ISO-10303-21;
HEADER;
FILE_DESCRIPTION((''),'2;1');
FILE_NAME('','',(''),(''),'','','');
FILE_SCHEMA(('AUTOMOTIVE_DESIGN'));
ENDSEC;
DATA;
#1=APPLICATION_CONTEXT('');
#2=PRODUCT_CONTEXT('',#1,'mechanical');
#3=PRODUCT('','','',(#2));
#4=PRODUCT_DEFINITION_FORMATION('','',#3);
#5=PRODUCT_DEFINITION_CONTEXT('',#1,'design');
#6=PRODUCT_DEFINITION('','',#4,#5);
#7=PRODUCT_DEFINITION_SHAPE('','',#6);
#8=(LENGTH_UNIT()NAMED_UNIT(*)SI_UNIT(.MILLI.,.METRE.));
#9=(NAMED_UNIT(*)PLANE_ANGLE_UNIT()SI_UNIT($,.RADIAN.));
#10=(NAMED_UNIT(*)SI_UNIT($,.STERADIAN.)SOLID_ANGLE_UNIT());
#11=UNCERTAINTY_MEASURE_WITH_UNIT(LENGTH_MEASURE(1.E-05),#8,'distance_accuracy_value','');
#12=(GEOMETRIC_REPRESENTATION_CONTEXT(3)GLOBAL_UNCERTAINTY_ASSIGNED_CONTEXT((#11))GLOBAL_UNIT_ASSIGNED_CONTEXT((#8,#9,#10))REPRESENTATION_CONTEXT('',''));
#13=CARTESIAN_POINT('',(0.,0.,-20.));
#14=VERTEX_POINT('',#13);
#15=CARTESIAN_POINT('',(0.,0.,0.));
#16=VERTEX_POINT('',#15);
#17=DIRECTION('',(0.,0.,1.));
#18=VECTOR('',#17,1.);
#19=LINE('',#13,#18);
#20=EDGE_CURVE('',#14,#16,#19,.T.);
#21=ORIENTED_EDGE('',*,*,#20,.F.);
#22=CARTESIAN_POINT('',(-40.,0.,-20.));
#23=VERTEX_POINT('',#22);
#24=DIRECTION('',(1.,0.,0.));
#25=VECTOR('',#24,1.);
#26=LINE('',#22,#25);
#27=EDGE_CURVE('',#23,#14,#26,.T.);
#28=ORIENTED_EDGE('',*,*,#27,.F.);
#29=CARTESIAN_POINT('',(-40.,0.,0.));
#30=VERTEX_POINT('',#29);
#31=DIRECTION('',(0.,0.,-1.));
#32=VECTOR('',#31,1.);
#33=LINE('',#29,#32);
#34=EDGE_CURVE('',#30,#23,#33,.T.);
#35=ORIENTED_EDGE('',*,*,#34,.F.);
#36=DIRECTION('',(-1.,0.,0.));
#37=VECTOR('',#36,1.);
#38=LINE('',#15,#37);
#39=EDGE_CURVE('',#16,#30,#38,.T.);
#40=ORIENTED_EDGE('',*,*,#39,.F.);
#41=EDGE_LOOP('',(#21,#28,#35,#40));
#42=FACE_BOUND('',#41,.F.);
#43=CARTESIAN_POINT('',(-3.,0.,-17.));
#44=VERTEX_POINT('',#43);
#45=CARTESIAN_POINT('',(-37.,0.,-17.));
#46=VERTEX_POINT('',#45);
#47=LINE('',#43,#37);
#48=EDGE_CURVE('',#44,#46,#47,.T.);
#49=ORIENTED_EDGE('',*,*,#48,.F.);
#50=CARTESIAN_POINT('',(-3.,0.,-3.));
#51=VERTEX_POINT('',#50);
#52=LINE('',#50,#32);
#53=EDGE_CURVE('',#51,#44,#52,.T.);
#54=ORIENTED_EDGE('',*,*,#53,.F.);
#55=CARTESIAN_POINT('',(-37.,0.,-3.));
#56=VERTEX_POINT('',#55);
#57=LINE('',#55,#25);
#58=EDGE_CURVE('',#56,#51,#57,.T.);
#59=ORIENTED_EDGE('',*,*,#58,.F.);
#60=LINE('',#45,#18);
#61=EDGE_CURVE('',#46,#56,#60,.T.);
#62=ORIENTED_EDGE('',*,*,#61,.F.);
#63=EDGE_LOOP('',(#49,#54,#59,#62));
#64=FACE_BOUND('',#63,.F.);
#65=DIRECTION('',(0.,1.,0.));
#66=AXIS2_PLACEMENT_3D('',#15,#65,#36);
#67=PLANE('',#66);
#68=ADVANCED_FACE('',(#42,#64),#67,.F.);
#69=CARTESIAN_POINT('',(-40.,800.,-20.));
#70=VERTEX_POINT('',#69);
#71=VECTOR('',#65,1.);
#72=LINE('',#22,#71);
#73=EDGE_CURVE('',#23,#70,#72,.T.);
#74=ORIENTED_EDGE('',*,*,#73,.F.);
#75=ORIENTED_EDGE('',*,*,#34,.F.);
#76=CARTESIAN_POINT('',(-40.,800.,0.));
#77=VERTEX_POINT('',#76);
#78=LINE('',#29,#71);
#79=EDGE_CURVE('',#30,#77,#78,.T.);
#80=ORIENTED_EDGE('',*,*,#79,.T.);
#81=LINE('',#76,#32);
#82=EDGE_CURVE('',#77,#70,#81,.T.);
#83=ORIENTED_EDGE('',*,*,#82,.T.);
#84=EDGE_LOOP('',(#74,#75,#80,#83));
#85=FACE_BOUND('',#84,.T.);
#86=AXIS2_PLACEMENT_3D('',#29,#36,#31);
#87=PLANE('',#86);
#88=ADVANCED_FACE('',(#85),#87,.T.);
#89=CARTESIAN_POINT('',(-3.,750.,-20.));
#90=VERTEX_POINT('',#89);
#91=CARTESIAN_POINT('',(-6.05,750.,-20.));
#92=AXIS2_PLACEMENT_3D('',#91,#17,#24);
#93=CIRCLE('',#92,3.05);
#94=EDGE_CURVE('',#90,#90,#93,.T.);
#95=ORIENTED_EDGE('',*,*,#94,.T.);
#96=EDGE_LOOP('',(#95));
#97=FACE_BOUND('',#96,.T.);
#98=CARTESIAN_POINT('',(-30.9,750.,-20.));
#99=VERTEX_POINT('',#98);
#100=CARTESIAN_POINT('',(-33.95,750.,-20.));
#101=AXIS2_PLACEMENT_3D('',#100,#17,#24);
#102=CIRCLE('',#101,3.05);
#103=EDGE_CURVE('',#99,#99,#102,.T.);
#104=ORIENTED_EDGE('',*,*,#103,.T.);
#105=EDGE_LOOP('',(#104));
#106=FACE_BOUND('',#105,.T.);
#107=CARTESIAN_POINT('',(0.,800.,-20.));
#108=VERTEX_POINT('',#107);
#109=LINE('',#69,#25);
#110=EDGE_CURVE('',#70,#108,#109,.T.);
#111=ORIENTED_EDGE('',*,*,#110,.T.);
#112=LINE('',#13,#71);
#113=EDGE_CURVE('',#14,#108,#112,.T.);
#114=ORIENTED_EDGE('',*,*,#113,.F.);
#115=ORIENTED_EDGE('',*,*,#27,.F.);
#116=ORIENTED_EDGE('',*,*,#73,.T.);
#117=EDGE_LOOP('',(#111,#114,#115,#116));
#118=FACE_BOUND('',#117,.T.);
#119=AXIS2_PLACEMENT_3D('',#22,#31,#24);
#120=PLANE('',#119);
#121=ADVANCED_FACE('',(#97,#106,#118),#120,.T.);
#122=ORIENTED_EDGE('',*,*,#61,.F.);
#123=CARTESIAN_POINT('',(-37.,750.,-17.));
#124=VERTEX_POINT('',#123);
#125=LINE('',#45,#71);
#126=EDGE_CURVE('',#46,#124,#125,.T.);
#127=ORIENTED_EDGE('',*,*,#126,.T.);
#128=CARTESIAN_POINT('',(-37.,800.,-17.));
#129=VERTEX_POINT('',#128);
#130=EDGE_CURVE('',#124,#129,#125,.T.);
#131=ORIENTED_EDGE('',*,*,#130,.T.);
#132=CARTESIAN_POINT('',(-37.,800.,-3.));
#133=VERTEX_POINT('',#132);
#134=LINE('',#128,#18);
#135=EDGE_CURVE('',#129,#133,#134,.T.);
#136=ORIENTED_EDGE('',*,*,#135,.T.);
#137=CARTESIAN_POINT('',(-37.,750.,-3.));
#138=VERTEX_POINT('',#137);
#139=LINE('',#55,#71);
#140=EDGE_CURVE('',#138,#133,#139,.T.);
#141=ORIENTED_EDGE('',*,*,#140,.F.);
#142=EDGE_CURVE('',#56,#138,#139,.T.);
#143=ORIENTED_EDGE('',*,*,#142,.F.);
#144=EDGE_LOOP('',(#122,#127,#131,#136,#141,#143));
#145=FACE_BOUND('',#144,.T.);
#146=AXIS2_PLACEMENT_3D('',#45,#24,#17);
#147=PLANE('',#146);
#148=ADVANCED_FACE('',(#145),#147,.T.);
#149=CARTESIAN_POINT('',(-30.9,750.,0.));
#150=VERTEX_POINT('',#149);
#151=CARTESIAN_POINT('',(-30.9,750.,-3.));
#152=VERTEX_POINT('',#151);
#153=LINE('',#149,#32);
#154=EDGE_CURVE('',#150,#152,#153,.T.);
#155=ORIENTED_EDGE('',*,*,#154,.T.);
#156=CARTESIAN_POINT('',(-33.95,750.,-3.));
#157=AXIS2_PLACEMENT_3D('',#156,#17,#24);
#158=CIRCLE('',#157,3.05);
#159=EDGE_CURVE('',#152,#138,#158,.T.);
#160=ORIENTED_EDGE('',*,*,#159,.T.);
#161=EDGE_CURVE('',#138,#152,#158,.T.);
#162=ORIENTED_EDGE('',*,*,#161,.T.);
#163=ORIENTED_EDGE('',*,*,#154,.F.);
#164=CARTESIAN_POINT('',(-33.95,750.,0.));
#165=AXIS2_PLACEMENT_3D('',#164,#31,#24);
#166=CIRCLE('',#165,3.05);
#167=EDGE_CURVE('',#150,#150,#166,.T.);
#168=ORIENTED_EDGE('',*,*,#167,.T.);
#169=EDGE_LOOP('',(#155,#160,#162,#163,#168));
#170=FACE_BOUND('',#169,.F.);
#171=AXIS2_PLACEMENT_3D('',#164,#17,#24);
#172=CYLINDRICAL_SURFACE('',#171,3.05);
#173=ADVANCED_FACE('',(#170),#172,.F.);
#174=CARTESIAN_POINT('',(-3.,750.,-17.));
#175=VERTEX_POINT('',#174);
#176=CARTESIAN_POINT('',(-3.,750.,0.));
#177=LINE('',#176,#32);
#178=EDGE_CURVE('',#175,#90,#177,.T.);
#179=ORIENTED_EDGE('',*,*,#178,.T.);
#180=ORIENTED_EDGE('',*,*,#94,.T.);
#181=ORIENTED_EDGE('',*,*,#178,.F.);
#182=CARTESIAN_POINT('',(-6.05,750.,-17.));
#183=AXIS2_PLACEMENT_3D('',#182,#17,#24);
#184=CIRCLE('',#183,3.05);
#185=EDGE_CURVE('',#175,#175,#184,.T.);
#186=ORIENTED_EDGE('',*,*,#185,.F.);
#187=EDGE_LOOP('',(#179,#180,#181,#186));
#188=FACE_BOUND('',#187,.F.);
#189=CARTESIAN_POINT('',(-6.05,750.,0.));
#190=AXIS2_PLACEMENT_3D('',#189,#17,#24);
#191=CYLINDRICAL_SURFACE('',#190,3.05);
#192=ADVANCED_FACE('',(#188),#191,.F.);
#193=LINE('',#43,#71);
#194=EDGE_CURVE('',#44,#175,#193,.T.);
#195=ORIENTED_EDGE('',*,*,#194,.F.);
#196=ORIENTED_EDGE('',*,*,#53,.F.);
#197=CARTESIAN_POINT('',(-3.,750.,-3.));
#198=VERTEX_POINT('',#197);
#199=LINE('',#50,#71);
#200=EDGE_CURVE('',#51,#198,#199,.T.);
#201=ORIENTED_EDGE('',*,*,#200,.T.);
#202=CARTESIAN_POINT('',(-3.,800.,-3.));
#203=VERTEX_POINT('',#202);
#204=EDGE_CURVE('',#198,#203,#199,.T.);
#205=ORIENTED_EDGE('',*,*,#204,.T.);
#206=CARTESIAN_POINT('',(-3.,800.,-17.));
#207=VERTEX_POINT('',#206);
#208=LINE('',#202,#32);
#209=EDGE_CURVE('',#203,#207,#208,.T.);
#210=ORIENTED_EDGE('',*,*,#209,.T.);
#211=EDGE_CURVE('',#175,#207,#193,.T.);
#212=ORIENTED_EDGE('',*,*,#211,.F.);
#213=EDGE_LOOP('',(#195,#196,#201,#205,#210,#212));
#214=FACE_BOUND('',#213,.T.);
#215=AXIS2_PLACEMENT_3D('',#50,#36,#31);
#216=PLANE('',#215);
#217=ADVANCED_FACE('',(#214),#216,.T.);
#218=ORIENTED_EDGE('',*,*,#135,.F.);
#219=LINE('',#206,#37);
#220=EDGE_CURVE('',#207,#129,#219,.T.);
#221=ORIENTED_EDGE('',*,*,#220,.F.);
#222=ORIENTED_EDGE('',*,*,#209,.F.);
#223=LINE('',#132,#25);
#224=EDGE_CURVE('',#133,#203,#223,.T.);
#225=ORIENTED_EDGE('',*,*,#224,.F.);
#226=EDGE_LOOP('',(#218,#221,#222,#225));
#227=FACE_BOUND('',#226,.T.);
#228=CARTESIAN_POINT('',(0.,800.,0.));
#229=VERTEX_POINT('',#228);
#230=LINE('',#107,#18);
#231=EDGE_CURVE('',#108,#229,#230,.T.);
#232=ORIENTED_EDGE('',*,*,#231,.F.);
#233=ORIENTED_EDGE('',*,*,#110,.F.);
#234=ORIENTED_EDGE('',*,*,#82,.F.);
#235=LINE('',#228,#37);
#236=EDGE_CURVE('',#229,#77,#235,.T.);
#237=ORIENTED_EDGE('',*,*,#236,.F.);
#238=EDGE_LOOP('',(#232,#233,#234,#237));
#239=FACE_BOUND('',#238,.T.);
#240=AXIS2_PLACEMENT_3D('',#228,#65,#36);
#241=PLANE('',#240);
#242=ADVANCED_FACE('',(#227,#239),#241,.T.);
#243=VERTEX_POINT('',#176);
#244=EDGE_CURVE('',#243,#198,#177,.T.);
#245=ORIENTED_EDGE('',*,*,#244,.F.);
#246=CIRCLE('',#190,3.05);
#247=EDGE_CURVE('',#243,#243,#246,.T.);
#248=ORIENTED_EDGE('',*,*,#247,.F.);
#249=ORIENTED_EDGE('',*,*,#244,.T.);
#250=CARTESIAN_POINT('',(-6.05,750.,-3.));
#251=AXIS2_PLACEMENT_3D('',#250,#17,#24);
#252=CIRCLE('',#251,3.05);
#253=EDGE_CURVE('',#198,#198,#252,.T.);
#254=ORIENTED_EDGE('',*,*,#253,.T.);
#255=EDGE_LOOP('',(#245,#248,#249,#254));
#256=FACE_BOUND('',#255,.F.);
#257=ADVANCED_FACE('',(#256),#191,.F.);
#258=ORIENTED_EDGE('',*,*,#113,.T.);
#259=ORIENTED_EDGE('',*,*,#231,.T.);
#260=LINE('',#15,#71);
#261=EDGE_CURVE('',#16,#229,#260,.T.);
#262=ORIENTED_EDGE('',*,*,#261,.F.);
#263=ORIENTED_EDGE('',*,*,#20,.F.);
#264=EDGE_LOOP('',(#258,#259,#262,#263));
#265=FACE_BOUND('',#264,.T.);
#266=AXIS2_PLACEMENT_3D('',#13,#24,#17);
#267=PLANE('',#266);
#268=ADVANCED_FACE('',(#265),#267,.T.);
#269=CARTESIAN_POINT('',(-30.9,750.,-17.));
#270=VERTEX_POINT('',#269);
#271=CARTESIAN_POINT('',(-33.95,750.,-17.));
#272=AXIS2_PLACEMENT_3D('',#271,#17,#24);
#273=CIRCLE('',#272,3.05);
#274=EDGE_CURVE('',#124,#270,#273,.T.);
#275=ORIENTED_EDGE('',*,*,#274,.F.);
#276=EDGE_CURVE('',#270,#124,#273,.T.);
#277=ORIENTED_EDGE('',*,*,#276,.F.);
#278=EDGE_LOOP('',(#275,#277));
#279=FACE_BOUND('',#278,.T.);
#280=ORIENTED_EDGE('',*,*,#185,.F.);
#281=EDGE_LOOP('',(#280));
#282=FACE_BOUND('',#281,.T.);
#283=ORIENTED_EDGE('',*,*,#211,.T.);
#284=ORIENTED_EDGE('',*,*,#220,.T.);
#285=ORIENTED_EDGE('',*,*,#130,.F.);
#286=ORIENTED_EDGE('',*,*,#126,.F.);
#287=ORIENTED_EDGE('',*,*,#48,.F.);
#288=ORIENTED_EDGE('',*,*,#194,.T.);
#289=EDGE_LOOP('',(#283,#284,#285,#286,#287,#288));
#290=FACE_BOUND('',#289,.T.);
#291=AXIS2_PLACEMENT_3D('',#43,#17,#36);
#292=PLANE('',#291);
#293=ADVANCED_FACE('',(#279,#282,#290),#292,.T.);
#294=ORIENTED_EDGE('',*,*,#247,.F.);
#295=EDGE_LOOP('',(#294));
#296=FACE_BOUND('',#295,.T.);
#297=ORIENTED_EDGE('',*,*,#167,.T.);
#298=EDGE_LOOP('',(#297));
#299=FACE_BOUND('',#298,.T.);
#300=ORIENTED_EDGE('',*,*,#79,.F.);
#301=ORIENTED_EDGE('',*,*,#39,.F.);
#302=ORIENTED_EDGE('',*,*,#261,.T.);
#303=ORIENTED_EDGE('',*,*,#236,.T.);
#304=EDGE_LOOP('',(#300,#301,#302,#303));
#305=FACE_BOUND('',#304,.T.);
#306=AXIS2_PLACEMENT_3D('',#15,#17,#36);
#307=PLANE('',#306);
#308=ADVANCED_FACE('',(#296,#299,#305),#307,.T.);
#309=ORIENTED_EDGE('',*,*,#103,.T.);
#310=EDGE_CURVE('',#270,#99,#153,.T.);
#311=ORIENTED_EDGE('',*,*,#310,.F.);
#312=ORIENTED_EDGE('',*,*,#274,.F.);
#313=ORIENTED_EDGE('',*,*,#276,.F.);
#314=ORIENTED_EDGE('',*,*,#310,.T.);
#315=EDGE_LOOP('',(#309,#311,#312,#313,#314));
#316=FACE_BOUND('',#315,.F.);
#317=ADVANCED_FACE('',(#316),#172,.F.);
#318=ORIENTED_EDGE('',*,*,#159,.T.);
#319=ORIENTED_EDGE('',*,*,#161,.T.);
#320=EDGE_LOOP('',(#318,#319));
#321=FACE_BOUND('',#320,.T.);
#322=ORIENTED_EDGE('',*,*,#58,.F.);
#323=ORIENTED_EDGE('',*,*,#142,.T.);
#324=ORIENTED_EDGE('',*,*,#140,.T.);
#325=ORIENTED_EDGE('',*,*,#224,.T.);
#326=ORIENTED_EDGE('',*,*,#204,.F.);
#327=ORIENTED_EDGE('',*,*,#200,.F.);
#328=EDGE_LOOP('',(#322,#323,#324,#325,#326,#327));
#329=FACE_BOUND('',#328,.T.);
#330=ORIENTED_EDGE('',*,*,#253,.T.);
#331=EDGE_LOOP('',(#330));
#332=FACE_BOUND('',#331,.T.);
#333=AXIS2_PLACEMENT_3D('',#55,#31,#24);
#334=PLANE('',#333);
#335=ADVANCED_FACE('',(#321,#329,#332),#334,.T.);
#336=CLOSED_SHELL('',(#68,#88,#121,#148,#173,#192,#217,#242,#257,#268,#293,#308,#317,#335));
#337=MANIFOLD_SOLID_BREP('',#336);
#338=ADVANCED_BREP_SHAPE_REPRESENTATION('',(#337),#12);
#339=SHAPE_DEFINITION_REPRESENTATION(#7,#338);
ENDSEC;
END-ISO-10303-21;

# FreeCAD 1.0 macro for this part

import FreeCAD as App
import Part
import Sketcher
Q = App.Units.Quantity

doc = App.newDocument("Part")
body = doc.addObject("PartDesign::Body", "Body")

# Sketch on XZ plane
sketch1 = doc.addObject("Sketcher::SketchObject", "Sketch")
body.addObject(sketch1)
sketch1.AttachmentSupport = (doc.XZ_Plane, [""])
sketch1.MapMode = "FlatFace"
sketch1.addGeometry([
    Part.LineSegment(App.Vector(-40, 0, 0), App.Vector(0, 0, 0)),  # 0
    Part.LineSegment(App.Vector(0, 0, 0), App.Vector(0, -20, 0)),  # 1
    Part.LineSegment(App.Vector(0, -20, 0), App.Vector(-40, -20, 0)),  # 2
    Part.LineSegment(App.Vector(-40, -20, 0), App.Vector(-40, 0, 0)),  # 3
    Part.LineSegment(App.Vector(-3, -3, 0), App.Vector(-37, -3, 0)),  # 4
    Part.LineSegment(App.Vector(-37, -3, 0), App.Vector(-37, -17, 0)),  # 5
    Part.LineSegment(App.Vector(-37, -17, 0), App.Vector(-3, -17, 0)),  # 6
    Part.LineSegment(App.Vector(-3, -17, 0), App.Vector(-3, -3, 0)),  # 7
], False)
sketch1.addConstraint([
    Sketcher.Constraint("Coincident", 0, 2, 1, 1),
    Sketcher.Constraint("Coincident", 1, 2, 2, 1),
    Sketcher.Constraint("Coincident", 2, 2, 3, 1),
    Sketcher.Constraint("Coincident", 3, 2, 0, 1),
    Sketcher.Constraint("Coincident", 4, 2, 5, 1),
    Sketcher.Constraint("Coincident", 5, 2, 6, 1),
    Sketcher.Constraint("Coincident", 6, 2, 7, 1),
    Sketcher.Constraint("Coincident", 7, 2, 4, 1),
    Sketcher.Constraint("Horizontal", 0),
    Sketcher.Constraint("Vertical", 1),
    Sketcher.Constraint("Horizontal", 2),
    Sketcher.Constraint("Vertical", 3),
    Sketcher.Constraint("Horizontal", 4),
    Sketcher.Constraint("Vertical", 5),
    Sketcher.Constraint("Horizontal", 6),
    Sketcher.Constraint("Vertical", 7),
    Sketcher.Constraint("Coincident", 0, 2, -1, 1),
    Sketcher.Constraint("DistanceX", 0, 1, 0, 2, Q("40 mm")),
    Sketcher.Constraint("DistanceY", 1, 2, 1, 1, Q("20 mm")),
    Sketcher.Constraint("DistanceY", 4, 2, -1, 1, Q("3 mm")),
    Sketcher.Constraint("DistanceX", 6, 2, -1, 1, Q("3 mm")),
    Sketcher.Constraint("DistanceX", 3, 2, 4, 2, Q("3 mm")),
    Sketcher.Constraint("DistanceY", 2, 2, 5, 2, Q("3 mm")),
])
pad1 = doc.addObject("PartDesign::Pad", "Pad")
body.addObject(pad1)
pad1.Profile = sketch1
pad1.Length = 800
pad1.Reversed = True

# Sketch on XY plane
sketch2 = doc.addObject("Sketcher::SketchObject", "Sketch001")
body.addObject(sketch2)
sketch2.AttachmentSupport = (doc.XY_Plane, [""])
sketch2.MapMode = "FlatFace"
sketch2.addGeometry([
    Part.Circle(App.Vector(-34, 750, 0), App.Vector(0, 0, 1), 3),
    Part.Circle(App.Vector(-6, 750, 0), App.Vector(0, 0, 1), 3),
], False)
sketch2.addConstraint([
    Sketcher.Constraint("Equal", 0, 1),
    Sketcher.Constraint("Horizontal", 0, 3, 1, 3),
    Sketcher.Constraint("Diameter", 0, Q("6.1 mm")),
    Sketcher.Constraint("DistanceY", -1, 1, 0, 3, Q("750 mm")),
    Sketcher.Constraint("DistanceX", 0, 3, 1, 3, Q("27.9 mm")),
    Sketcher.Constraint("DistanceX", 0, 3, -1, 1, Q("33.95 mm")),
])
pocket1 = doc.addObject("PartDesign::Pocket", "Pocket")
body.addObject(pocket1)
pocket1.Profile = sketch2
pocket1.Type = "ThroughAll"

doc.recompute()
